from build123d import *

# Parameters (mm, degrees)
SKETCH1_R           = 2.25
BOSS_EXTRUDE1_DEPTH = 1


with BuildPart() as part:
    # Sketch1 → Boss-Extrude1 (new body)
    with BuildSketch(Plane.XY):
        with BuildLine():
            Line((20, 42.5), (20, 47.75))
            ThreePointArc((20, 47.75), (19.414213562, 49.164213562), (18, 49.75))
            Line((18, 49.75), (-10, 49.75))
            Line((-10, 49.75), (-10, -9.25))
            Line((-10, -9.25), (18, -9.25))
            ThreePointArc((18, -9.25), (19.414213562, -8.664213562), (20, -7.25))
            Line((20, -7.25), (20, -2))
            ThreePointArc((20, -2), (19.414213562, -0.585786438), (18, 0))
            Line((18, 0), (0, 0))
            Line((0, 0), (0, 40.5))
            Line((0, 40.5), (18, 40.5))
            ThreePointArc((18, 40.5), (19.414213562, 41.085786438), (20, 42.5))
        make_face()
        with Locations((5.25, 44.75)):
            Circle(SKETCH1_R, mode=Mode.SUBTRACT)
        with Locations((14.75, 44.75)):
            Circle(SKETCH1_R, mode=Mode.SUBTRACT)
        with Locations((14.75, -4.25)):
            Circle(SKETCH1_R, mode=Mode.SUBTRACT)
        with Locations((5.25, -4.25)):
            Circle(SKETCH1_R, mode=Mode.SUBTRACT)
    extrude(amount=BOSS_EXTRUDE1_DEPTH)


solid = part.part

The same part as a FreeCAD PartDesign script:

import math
import FreeCAD as App
import Part
import Sketcher
from FreeCAD import Vector
Q = App.Units.Quantity

doc = App.newDocument("Part")
body = doc.addObject("PartDesign::Body", "Body")

sketch1 = body.newObject("Sketcher::SketchObject", "Sketch")
sketch1.AttachmentSupport = (doc.getObject("XY_Plane"), [""])
sketch1.MapMode = "FlatFace"
sketch1.addGeometry([
    Part.LineSegment(Vector(20, 42.5, 0), Vector(20, 47.8, 0)),
    Part.ArcOfCircle(Part.Circle(Vector(18, 47.7, 0), Vector(0, 0, 1), 2), math.radians(0), math.radians(90)),
    Part.LineSegment(Vector(18, 49.8, 0), Vector(-10, 49.8, 0)),
    Part.LineSegment(Vector(-10, 49.8, 0), Vector(-10, -9.2, 0)),
    Part.LineSegment(Vector(-10, -9.2, 0), Vector(18, -9.2, 0)),
    Part.ArcOfCircle(Part.Circle(Vector(18, -7.2, 0), Vector(0, 0, 1), 2), math.radians(-90), math.radians(0)),
    Part.LineSegment(Vector(20, -7.2, 0), Vector(20, -2, 0)),
    Part.ArcOfCircle(Part.Circle(Vector(18, -2, 0), Vector(0, 0, 1), 2), math.radians(0), math.radians(90)),
    Part.LineSegment(Vector(18, 0, 0), Vector(0, 0, 0)),
    Part.LineSegment(Vector(0, 0, 0), Vector(0, 40.5, 0)),
    Part.LineSegment(Vector(0, 40.5, 0), Vector(18, 40.5, 0)),
    Part.ArcOfCircle(Part.Circle(Vector(18, 42.5, 0), Vector(0, 0, 1), 2), math.radians(-90), math.radians(0)),
    Part.Circle(Vector(5.2, -4.2, 0), Vector(0, 0, 1), 2.2),
    Part.Circle(Vector(14.8, -4.2, 0), Vector(0, 0, 1), 2.2),
    Part.Circle(Vector(5.2, 44.8, 0), Vector(0, 0, 1), 2.2),
    Part.Circle(Vector(14.8, 44.8, 0), Vector(0, 0, 1), 2.2),
], False)
sketch1.addConstraint([
    Sketcher.Constraint("Tangent", 0, 2, 1, 1),
    Sketcher.Constraint("Tangent", 1, 2, 2, 1),
    Sketcher.Constraint("Coincident", 2, 2, 3, 1),
    Sketcher.Constraint("Coincident", 3, 2, 4, 1),
    Sketcher.Constraint("Tangent", 4, 2, 5, 1),
    Sketcher.Constraint("Tangent", 5, 2, 6, 1),
    Sketcher.Constraint("Tangent", 6, 2, 7, 1),
    Sketcher.Constraint("Tangent", 7, 2, 8, 1),
    Sketcher.Constraint("Coincident", 8, 2, 9, 1),
    Sketcher.Constraint("Coincident", 9, 2, 10, 1),
    Sketcher.Constraint("Tangent", 10, 2, 11, 1),
    Sketcher.Constraint("Tangent", 11, 2, 0, 1),
    Sketcher.Constraint("Vertical", 0),
    Sketcher.Constraint("Horizontal", 2),
    Sketcher.Constraint("Vertical", 3),
    Sketcher.Constraint("Horizontal", 4),
    Sketcher.Constraint("Vertical", 6),
    Sketcher.Constraint("Horizontal", 8),
    Sketcher.Constraint("Vertical", 9),
    Sketcher.Constraint("Horizontal", 10),
    Sketcher.Constraint("Coincident", 8, 2, -1, 1),
    Sketcher.Constraint("Equal", 1, 5),
    Sketcher.Constraint("Equal", 5, 7),
    Sketcher.Constraint("Equal", 7, 11),
    Sketcher.Constraint("Equal", 12, 13),
    Sketcher.Constraint("Equal", 13, 14),
    Sketcher.Constraint("Equal", 14, 15),
    Sketcher.Constraint("Horizontal", 12, 3, 13, 3),
    Sketcher.Constraint("Horizontal", 14, 3, 15, 3),
    Sketcher.Constraint("Vertical", 1, 3, 5, 3),
    Sketcher.Constraint("Vertical", 12, 3, 14, 3),
    Sketcher.Constraint("Vertical", 13, 3, 15, 3),
    Sketcher.Constraint("Equal", 0, 6),
    Sketcher.Constraint("Radius", 1, Q("2 mm")),
    Sketcher.Constraint("Diameter", 12, Q("4.5 mm")),
    Sketcher.Constraint("DistanceX", 2, 2, 2, 1, Q("28 mm")),
    Sketcher.Constraint("DistanceX", 8, 2, 8, 1, Q("18 mm")),
    Sketcher.Constraint("DistanceY", 3, 2, 3, 1, Q("59 mm")),
    Sketcher.Constraint("DistanceY", 9, 1, 9, 2, Q("40.5 mm")),
    Sketcher.Constraint("DistanceY", 5, 3, 12, 3, Q("3 mm")),
    Sketcher.Constraint("DistanceY", 14, 3, 1, 3, Q("3 mm")),
    Sketcher.Constraint("DistanceX", 12, 3, 13, 3, Q("9.5 mm")),
    Sketcher.Constraint("DistanceX", -1, 1, 12, 3, Q("5.25 mm")),
])
pad1 = body.newObject("PartDesign::Pad", "Pad")
pad1.Profile = sketch1
pad1.Length = 1

doc.recompute()
